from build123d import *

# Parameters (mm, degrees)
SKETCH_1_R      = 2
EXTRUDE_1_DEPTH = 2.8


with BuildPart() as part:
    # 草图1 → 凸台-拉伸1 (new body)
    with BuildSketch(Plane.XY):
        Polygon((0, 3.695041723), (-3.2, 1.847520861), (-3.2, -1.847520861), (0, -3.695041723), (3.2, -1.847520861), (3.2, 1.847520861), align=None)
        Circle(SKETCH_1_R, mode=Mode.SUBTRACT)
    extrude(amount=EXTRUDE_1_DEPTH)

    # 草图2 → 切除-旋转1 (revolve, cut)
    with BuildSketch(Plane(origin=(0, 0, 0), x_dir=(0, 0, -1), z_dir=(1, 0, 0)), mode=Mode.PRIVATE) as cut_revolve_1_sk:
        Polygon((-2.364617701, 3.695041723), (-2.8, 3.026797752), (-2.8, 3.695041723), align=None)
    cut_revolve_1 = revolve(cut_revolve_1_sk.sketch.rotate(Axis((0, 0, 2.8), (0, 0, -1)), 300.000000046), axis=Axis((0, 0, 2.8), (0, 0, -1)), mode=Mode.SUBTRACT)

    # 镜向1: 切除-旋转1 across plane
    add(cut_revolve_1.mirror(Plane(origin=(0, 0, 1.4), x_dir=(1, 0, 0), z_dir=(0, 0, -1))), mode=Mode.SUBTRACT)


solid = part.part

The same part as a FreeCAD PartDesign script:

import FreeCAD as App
import Part
import Sketcher
Q = App.Units.Quantity


def add_polygon(sketch, points):
    """Adds a closed chain of lines whose ends are joined by coincident constraints."""
    first, n = sketch.GeometryCount, len(points)
    for a, b in zip(points, points[1:] + points[:1]):
        sketch.addGeometry(Part.LineSegment(App.Vector(*a, 0), App.Vector(*b, 0)), False)
    for i in range(n):
        sketch.addConstraint(Sketcher.Constraint("Coincident", first + i, 2, first + (i + 1) % n, 1))

doc = App.newDocument("Part")
body = doc.addObject("PartDesign::Body", "Body")

sketch1 = body.newObject("Sketcher::SketchObject", "Sketch")
sketch1.AttachmentSupport = (doc.getObject("XY_Plane"), [""])
sketch1.MapMode = "FlatFace"
add_polygon(sketch1, [(0, 3.695042), (-3.2, 1.847521), (-3.2, -1.847521), (0, -3.695042), (3.2, -1.847521), (3.2, 1.847521)])
sketch1.addGeometry(Part.Circle(App.Vector(0, 0, 0), App.Vector(0, 0, 1), 2), False)
sketch1.addConstraint(Sketcher.Constraint("Vertical", 1))
sketch1.addConstraint(Sketcher.Constraint("Vertical", 4))
sketch1.addConstraint(Sketcher.Constraint("Coincident", 6, 3, -1, 1))
sketch1.addConstraint(Sketcher.Constraint("Symmetric", 0, 2, 3, 2, -1, 1))
sketch1.addConstraint(Sketcher.Constraint("Symmetric", 2, 2, 5, 2, -1, 1))
sketch1.addConstraint(Sketcher.Constraint("PointOnObject", 2, 2, -2))
sketch1.addConstraint(Sketcher.Constraint("Parallel", 2, 5))
sketch1.addConstraint(Sketcher.Constraint("Horizontal", 1, 2, 3, 2))
sketch1.addConstraint(Sketcher.Constraint("Diameter", 6, Q("4 mm")))
sketch1.addConstraint(Sketcher.Constraint("Angle", 0, Q("-150 deg")))
sketch1.addConstraint(Sketcher.Constraint("DistanceX", 0, 2, -1, 1, Q("3.2 mm")))
sketch1.addConstraint(Sketcher.Constraint("DistanceY", 1, 2, 1, 1, Q("3.695042 mm")))
pad1 = body.newObject("PartDesign::Pad", "Pad")
pad1.Profile = sketch1
pad1.Length = 2.8

sketch2 = body.newObject("Sketcher::SketchObject", "Sketch001")
sketch2.AttachmentSupport = (doc.getObject("YZ_Plane"), [""])
sketch2.MapMode = "FlatFace"
add_polygon(sketch2, [(3.026798, 2.8), (3.695042, 2.364618), (3.695042, 2.8)])
sketch2.addConstraint(Sketcher.Constraint("Vertical", 1))
sketch2.addConstraint(Sketcher.Constraint("Horizontal", 2))
sketch2.addConstraint(Sketcher.Constraint("DistanceY", -1, 1, 1, 2, Q("2.8 mm")))
sketch2.addConstraint(Sketcher.Constraint("DistanceX", 2, 2, 2, 1, Q("0.668244 mm")))
sketch2.addConstraint(Sketcher.Constraint("DistanceY", 1, 1, 1, 2, Q("0.435382 mm")))
sketch2.addConstraint(Sketcher.Constraint("DistanceX", -1, 1, 0, 2, Q("3.695042 mm")))
groove = body.newObject("PartDesign::Groove", "Groove")
groove.Profile = sketch2
groove.ReferenceAxis = (sketch2, ["V_Axis"])
groove.Angle = 360
doc.recompute()

datumplane = body.newObject("PartDesign::Plane", "DatumPlane")
datumplane.AttachmentSupport = (doc.getObject("XY_Plane"), [""])
datumplane.MapMode = "FlatFace"
datumplane.AttachmentOffset = App.Placement(App.Vector(0, 0, 1.4), App.Rotation())
mirrored = body.newObject("PartDesign::Mirrored", "Mirrored")
mirrored.Originals = [groove]
mirrored.MirrorPlane = (datumplane, [""])
body.Tip = mirrored

doc.recompute()
